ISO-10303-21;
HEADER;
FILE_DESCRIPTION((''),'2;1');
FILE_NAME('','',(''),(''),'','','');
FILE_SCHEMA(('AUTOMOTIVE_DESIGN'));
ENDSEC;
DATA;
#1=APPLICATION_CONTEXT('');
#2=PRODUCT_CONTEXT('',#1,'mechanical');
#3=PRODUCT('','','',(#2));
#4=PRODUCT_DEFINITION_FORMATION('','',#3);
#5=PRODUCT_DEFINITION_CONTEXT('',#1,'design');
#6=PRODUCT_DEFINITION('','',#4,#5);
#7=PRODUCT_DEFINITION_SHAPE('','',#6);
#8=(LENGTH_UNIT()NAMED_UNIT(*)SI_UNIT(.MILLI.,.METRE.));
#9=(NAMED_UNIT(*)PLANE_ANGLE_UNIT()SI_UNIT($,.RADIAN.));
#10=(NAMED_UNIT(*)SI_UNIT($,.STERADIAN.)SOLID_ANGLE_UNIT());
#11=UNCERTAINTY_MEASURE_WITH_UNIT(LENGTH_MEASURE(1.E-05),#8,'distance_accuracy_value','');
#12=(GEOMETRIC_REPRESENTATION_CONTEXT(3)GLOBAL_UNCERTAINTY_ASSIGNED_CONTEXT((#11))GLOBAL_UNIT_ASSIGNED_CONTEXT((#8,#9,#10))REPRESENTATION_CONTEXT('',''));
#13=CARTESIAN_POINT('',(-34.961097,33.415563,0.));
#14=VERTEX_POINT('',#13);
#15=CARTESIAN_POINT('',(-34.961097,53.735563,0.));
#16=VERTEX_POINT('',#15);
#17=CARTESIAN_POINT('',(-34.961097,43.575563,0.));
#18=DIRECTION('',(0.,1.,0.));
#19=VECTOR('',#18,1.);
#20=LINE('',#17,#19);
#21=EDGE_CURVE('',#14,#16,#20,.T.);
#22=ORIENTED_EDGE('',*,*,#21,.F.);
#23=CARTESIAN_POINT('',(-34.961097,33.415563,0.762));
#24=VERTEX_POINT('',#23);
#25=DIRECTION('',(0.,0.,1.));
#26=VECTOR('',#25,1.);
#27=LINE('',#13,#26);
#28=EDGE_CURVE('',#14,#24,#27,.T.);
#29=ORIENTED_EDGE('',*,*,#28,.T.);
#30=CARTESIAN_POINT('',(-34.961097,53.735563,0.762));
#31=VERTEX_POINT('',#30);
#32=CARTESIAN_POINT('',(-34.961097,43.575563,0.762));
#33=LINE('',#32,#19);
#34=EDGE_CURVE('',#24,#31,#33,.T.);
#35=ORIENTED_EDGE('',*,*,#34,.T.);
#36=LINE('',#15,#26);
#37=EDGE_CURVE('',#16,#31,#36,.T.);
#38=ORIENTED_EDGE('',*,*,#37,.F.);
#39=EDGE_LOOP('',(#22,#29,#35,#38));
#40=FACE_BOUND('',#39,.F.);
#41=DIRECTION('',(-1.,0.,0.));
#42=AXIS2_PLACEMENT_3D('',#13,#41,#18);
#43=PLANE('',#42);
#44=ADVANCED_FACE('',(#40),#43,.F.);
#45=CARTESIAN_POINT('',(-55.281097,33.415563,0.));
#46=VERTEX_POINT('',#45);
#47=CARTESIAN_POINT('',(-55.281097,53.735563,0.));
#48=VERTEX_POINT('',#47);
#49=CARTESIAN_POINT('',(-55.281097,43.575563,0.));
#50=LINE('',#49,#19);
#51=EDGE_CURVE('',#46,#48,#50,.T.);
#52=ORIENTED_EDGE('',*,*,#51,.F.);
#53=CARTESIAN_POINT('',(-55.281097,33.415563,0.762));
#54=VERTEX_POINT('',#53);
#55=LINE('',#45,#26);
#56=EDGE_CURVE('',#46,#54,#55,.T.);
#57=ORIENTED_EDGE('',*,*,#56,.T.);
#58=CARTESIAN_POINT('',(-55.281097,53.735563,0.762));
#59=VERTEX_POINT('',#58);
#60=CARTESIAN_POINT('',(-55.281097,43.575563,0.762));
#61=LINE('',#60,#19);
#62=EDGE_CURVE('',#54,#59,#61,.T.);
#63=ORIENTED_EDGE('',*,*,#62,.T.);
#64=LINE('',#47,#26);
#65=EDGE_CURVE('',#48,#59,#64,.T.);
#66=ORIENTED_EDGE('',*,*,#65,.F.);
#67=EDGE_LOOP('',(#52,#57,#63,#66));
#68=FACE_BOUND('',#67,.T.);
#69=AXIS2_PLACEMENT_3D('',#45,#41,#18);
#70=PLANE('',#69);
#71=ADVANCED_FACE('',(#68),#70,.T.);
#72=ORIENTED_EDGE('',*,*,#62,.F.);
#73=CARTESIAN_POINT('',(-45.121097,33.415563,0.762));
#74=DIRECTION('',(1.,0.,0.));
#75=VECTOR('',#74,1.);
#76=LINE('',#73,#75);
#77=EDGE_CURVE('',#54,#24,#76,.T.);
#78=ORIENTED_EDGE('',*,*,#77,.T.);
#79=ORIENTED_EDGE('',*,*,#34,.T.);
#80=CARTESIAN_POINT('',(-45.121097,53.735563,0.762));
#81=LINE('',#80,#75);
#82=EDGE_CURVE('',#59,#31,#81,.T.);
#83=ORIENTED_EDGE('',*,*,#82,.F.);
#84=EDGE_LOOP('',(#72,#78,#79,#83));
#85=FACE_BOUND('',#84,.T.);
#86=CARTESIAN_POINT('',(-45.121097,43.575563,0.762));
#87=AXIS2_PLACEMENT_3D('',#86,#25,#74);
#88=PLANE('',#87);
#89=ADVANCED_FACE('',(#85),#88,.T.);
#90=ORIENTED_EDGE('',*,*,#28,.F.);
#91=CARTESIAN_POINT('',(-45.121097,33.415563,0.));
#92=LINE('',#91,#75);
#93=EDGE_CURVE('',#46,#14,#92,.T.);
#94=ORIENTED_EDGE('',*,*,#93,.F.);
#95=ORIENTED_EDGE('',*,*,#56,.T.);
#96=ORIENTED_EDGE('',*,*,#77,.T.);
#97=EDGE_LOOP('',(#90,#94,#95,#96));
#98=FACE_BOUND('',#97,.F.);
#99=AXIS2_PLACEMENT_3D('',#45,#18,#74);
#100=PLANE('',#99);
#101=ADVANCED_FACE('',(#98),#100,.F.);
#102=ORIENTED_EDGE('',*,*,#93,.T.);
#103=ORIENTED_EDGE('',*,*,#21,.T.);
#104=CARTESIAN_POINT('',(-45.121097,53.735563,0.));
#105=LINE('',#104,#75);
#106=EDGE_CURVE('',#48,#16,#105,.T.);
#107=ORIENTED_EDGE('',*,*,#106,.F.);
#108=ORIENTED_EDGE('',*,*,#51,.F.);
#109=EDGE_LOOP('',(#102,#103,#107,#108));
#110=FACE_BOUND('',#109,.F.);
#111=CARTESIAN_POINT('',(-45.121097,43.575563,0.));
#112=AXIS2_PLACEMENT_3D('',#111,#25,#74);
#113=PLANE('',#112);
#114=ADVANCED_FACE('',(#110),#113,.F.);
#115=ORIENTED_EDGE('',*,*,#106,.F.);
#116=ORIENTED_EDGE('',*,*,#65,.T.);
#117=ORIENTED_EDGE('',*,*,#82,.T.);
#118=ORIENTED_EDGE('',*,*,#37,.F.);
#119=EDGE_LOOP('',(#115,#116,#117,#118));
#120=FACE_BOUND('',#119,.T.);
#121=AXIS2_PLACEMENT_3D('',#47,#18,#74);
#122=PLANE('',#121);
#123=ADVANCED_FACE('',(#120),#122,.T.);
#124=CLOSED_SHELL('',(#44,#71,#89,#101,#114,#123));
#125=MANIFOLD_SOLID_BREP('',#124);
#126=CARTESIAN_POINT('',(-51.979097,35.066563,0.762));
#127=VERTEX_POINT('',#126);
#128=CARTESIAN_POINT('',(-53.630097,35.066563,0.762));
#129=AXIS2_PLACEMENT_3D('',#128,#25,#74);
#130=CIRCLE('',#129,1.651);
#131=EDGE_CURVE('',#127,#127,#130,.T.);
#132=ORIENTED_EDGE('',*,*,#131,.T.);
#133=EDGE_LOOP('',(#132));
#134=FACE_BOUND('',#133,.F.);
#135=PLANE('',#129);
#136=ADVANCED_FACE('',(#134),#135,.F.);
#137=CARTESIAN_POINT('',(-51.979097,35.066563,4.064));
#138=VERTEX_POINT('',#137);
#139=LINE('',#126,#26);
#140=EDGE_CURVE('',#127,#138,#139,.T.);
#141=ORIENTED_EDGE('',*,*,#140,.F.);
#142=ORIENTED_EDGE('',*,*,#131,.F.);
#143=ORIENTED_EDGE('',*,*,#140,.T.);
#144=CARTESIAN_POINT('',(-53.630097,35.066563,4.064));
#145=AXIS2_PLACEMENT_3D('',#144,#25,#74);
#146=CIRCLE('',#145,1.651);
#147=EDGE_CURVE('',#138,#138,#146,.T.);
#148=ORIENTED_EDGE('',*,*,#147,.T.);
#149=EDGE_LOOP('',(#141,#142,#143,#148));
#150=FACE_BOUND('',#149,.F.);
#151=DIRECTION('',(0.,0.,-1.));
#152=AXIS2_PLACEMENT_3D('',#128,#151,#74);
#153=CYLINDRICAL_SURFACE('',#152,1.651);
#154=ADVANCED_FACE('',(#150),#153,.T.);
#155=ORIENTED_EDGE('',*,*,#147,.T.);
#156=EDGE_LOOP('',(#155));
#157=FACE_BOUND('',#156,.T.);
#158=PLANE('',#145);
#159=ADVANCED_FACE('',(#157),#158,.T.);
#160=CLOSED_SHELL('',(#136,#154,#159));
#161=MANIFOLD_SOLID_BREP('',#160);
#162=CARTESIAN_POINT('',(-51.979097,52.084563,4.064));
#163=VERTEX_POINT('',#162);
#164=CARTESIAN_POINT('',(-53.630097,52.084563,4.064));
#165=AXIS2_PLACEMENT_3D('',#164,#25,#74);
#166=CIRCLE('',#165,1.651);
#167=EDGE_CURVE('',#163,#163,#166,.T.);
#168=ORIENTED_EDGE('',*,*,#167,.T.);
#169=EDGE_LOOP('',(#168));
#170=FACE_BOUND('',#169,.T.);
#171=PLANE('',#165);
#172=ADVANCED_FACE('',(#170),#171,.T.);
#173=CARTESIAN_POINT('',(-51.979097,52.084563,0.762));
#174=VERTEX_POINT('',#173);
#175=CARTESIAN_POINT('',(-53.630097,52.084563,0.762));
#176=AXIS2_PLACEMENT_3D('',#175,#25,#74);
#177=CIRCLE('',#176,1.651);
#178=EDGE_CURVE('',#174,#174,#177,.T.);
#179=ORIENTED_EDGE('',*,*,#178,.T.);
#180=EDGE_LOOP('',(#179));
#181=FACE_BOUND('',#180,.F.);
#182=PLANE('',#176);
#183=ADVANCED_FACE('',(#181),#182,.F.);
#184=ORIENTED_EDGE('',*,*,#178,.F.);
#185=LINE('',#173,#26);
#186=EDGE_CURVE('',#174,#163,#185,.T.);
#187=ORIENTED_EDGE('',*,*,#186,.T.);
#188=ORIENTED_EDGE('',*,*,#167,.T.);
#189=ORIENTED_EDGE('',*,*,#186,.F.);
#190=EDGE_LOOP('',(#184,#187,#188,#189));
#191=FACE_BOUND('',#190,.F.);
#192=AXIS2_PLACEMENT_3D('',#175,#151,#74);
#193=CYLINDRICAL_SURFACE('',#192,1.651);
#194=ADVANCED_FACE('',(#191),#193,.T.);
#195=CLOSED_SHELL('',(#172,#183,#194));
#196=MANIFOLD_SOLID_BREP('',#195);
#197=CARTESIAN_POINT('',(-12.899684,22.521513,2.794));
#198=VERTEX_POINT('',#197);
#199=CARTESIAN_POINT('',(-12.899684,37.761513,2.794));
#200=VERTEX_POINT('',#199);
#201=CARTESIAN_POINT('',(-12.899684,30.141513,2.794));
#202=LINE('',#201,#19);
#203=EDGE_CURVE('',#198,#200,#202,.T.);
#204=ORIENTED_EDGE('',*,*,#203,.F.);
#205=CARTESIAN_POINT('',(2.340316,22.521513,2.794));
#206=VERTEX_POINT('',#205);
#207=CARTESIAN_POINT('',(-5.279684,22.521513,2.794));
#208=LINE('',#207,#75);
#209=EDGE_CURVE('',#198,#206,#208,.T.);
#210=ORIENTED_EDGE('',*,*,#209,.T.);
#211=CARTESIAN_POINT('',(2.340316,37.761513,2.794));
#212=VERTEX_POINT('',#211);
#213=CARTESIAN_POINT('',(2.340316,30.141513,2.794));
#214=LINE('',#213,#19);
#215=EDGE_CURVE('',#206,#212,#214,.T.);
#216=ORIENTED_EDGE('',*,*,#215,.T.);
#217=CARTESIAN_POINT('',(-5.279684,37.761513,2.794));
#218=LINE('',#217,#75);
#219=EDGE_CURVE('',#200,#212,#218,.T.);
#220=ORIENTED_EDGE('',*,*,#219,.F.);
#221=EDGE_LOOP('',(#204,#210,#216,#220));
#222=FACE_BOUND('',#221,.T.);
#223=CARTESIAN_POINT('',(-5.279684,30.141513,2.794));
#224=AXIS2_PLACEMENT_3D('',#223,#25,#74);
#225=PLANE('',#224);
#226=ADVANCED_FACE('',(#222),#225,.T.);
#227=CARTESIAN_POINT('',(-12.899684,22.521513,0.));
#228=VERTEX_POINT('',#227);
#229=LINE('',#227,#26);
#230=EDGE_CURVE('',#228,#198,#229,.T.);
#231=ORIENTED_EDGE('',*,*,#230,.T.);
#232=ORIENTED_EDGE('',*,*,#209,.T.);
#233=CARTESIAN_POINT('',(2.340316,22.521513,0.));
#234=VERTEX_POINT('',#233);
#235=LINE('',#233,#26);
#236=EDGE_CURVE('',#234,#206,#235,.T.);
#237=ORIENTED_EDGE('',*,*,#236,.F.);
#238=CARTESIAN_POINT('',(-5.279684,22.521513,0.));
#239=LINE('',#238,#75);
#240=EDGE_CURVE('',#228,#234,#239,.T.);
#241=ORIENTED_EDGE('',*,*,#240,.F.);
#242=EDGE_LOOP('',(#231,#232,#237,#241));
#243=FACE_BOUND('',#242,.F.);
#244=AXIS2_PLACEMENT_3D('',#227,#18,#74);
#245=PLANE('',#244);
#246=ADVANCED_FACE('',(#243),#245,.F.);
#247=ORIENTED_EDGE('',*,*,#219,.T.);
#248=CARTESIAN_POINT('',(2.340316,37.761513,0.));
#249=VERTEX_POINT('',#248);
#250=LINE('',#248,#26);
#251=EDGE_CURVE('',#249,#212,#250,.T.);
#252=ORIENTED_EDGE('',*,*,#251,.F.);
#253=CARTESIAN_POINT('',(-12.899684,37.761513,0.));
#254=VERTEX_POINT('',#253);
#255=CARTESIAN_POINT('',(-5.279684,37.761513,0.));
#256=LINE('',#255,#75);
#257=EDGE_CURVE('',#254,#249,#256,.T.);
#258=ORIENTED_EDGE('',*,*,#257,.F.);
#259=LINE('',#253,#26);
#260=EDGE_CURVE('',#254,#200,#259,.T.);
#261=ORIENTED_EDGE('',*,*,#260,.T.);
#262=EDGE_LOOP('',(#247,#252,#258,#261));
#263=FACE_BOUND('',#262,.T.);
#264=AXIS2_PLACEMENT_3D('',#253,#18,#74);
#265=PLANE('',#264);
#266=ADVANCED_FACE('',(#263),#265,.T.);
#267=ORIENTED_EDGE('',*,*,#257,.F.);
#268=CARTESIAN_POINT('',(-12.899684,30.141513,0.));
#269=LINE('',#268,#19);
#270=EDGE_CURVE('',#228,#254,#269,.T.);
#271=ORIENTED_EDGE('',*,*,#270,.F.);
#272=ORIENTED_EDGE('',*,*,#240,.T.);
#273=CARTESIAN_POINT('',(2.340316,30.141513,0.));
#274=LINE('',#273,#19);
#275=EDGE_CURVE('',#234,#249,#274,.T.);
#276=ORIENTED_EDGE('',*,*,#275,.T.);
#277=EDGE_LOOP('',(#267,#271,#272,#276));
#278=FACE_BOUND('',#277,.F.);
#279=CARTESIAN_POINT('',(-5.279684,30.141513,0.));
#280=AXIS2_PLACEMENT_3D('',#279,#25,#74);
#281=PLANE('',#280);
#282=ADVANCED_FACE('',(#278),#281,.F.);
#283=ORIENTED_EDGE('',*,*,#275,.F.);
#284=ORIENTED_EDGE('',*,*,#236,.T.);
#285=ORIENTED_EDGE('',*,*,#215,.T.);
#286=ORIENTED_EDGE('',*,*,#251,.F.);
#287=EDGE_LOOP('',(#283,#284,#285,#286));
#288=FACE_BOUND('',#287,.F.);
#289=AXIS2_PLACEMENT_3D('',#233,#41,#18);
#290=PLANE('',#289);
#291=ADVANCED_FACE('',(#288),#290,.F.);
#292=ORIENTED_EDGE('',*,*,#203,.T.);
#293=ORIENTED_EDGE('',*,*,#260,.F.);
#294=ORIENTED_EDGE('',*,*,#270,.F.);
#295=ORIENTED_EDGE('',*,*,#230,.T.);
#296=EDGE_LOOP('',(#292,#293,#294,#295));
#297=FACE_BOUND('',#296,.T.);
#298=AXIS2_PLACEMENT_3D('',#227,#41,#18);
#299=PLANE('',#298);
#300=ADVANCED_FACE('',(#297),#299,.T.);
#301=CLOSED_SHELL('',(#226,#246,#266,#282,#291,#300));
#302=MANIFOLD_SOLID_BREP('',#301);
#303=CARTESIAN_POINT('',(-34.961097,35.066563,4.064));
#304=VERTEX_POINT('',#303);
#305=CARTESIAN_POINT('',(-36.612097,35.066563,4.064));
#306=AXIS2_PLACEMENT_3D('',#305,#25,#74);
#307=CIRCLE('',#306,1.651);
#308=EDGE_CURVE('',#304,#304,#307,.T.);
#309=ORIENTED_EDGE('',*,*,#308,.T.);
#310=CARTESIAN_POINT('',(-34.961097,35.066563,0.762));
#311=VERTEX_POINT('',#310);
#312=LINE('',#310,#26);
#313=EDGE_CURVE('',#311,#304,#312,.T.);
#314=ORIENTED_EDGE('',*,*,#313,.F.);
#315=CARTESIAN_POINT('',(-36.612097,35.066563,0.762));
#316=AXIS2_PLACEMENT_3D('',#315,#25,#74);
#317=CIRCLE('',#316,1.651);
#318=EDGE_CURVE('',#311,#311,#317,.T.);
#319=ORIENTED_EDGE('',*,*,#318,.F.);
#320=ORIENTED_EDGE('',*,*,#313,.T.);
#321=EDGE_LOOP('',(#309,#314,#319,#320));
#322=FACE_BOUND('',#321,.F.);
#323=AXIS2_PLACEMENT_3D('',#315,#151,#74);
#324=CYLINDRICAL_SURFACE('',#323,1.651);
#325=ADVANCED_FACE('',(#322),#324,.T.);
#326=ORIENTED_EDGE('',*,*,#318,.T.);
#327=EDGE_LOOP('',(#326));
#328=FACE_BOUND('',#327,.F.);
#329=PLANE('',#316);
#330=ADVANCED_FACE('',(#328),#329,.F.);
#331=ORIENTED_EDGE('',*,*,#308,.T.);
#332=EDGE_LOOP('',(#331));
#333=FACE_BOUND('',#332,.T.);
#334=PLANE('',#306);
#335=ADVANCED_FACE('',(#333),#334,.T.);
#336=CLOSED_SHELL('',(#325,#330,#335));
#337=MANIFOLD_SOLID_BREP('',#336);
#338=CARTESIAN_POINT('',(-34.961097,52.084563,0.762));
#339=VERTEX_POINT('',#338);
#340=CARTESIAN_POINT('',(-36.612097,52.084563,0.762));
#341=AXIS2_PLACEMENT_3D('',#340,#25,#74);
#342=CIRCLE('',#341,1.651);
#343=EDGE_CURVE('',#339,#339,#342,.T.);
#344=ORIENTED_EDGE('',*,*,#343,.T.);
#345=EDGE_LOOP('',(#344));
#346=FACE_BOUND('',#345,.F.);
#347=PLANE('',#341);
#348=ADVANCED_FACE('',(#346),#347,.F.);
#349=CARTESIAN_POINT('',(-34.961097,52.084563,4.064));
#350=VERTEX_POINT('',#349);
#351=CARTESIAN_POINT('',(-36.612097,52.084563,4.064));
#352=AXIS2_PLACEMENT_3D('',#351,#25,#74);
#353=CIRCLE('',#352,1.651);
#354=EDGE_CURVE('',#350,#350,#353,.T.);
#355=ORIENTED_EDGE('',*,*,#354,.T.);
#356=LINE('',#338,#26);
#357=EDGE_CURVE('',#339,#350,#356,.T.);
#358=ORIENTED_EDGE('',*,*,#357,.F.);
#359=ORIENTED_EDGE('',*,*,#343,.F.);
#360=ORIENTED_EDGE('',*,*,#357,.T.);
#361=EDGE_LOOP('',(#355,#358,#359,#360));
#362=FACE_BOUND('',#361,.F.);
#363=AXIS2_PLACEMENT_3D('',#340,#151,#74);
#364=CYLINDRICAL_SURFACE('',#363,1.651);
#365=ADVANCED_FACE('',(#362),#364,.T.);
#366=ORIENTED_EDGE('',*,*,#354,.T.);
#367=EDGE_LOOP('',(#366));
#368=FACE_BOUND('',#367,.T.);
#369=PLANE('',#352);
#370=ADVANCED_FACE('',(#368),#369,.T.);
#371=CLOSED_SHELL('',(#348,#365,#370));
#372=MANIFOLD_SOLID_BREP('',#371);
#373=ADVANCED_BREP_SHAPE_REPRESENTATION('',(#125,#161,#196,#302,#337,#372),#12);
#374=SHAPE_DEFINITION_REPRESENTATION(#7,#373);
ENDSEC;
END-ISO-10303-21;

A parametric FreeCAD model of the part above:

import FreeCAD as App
import Part
import Sketcher

V = App.Vector
Q = App.Units.Quantity


def add_polygon(sketch, points):
    """Adds a closed chain of lines whose ends are joined by coincident constraints."""
    first, n = sketch.GeometryCount, len(points)
    for a, b in zip(points, points[1:] + points[:1]):
        sketch.addGeometry(Part.LineSegment(App.Vector(*a, 0), App.Vector(*b, 0)), False)
    for i in range(n):
        sketch.addConstraint(Sketcher.Constraint("Coincident", first + i, 2, first + (i + 1) % n, 1))

doc = App.newDocument("Part")
body = doc.addObject("PartDesign::Body", "Body")

# Sketch on XY plane
sketch1 = body.newObject("Sketcher::SketchObject", "Sketch")
sketch1.AttachmentSupport = (doc.getObject("XY_Plane"), [""])
sketch1.MapMode = "FlatFace"
add_polygon(sketch1, [(-55.281097, 53.735563), (-55.281097, 33.415563), (-34.961097, 33.415563), (-34.961097, 53.735563)])  # lines 0-3
sketch1.addConstraint([
    Sketcher.Constraint("Vertical", 0),
    Sketcher.Constraint("Horizontal", 1),
    Sketcher.Constraint("Vertical", 2),
    Sketcher.Constraint("Horizontal", 3),
    Sketcher.Constraint("Equal", 3, 0),
    Sketcher.Constraint("DistanceX", 1, 1, 1, 2, Q("0.8 in")),
    Sketcher.Constraint("DistanceX", 0, 2, -1, 1, 55.281097),
    Sketcher.Constraint("DistanceY", -1, 1, 0, 2, 33.415563),
])
pad1 = body.newObject("PartDesign::Pad", "Pad")
pad1.Profile = sketch1
pad1.Length = Q("0.03 in")
body2 = doc.addObject("PartDesign::Body", "Body001")
body2.AllowCompound = True

# Sketch on XY plane
sketch2 = body2.newObject("Sketcher::SketchObject", "Sketch001")
sketch2.AttachmentSupport = (doc.getObject("XY_Plane001"), [""])
sketch2.MapMode = "FlatFace"
sketch2.AttachmentOffset = App.Placement(V(0, 0, 0.03 * 25.4), App.Rotation())
sketch2.addGeometry([
    Part.Circle(V(-36.612097, 52.084563, 0), V(0, 0, 1), 1.651),
    Part.Circle(V(-53.630097, 52.084563, 0), V(0, 0, 1), 1.651),
    Part.Circle(V(-53.630097, 35.066563, 0), V(0, 0, 1), 1.651),
    Part.Circle(V(-36.612097, 35.066563, 0), V(0, 0, 1), 1.651),
], False)
sketch2.addConstraint([
    Sketcher.Constraint("Equal", 0, 1),
    Sketcher.Constraint("Equal", 1, 2),
    Sketcher.Constraint("Equal", 2, 3),
    Sketcher.Constraint("Horizontal", 0, 3, 1, 3),
    Sketcher.Constraint("Horizontal", 2, 3, 3, 3),
    Sketcher.Constraint("Vertical", 1, 3, 2, 3),
    Sketcher.Constraint("Vertical", 0, 3, 3, 3),
    Sketcher.Constraint("Diameter", 0, Q("0.13 in")),
    Sketcher.Constraint("DistanceX", 1, 3, 0, 3, Q("0.67 in")),
    Sketcher.Constraint("DistanceY", 2, 3, 1, 3, Q("0.67 in")),
    Sketcher.Constraint("DistanceX", 0, 3, -1, 1, 36.612097),
    Sketcher.Constraint("DistanceY", -1, 1, 0, 3, 52.084563),
])
pad2 = body2.newObject("PartDesign::Pad", "Pad001")
pad2.Profile = sketch2
pad2.Length = Q("0.13 in")
body3 = doc.addObject("PartDesign::Body", "Body002")

# Sketch on XY plane
sketch3 = body3.newObject("Sketcher::SketchObject", "Sketch002")
sketch3.AttachmentSupport = (doc.getObject("XY_Plane002"), [""])
sketch3.MapMode = "FlatFace"
add_polygon(sketch3, [(-12.899684, 37.761513), (-12.899684, 22.521513), (2.340316, 22.521513), (2.340316, 37.761513)])  # lines 0-3
sketch3.addConstraint([
    Sketcher.Constraint("Vertical", 0),
    Sketcher.Constraint("Horizontal", 1),
    Sketcher.Constraint("Vertical", 2),
    Sketcher.Constraint("Horizontal", 3),
    Sketcher.Constraint("Equal", 3, 0),
    Sketcher.Constraint("DistanceX", 1, 1, 1, 2, Q("0.6 in")),
    Sketcher.Constraint("DistanceX", 0, 2, -1, 1, 12.899684),
    Sketcher.Constraint("DistanceY", -1, 1, 0, 2, 22.521513),
])
pad3 = body3.newObject("PartDesign::Pad", "Pad002")
pad3.Profile = sketch3
pad3.Length = Q("0.11 in")

doc.recompute()
